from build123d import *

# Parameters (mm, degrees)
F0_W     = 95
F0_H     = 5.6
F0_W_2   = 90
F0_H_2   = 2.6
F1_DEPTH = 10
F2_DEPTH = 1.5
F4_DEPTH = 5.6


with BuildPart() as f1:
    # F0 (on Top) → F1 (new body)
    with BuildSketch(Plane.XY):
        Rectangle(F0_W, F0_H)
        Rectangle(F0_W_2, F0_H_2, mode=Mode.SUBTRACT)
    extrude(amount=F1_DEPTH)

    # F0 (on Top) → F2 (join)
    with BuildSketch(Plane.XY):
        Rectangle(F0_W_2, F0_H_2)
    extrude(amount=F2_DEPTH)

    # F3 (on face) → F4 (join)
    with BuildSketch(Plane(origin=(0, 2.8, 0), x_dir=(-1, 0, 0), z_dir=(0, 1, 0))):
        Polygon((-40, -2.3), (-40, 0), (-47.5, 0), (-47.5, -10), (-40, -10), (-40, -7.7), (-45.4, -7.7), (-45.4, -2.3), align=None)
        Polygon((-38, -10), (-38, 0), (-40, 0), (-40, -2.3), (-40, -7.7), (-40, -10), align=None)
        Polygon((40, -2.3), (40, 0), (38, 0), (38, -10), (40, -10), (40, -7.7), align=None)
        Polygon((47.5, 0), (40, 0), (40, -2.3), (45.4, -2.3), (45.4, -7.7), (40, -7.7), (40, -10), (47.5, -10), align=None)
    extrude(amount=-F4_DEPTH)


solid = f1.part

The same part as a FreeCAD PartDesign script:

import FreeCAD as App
import Part
import Sketcher

V = App.Vector
Q = App.Units.Quantity


def add_polygon(sketch, points):
    """Adds a closed chain of lines whose ends are joined by coincident constraints."""
    first, n = sketch.GeometryCount, len(points)
    for a, b in zip(points, points[1:] + points[:1]):
        sketch.addGeometry(Part.LineSegment(App.Vector(*a, 0), App.Vector(*b, 0)), False)
    for i in range(n):
        sketch.addConstraint(Sketcher.Constraint("Coincident", first + i, 2, first + (i + 1) % n, 1))

doc = App.newDocument("Part")
body = doc.addObject("PartDesign::Body", "Body")

# Sketch on XY plane
sketch1 = body.newObject("Sketcher::SketchObject", "Sketch")
sketch1.AttachmentSupport = (doc.getObject("XY_Plane"), [""])
sketch1.MapMode = "FlatFace"
add_polygon(sketch1, [(-47.5, 2.8), (-47.5, -2.8), (47.5, -2.8), (47.5, 2.8)])  # lines 0-3
add_polygon(sketch1, [(45, -1.3), (-45, -1.3), (-45, 1.3), (45, 1.3)])  # lines 4-7
sketch1.addConstraint([
    Sketcher.Constraint("Vertical", 0),
    Sketcher.Constraint("Horizontal", 1),
    Sketcher.Constraint("Vertical", 2),
    Sketcher.Constraint("Horizontal", 3),
    Sketcher.Constraint("Horizontal", 4),
    Sketcher.Constraint("Vertical", 5),
    Sketcher.Constraint("Horizontal", 6),
    Sketcher.Constraint("Vertical", 7),
    Sketcher.Constraint("Symmetric", 0, 2, 2, 2, -1, 1),
    Sketcher.Constraint("Symmetric", 4, 2, 6, 2, -1, 1),
    Sketcher.Constraint("DistanceX", 1, 1, 1, 2, Q("95 mm")),
    Sketcher.Constraint("DistanceX", 4, 2, 4, 1, Q("90 mm")),
    Sketcher.Constraint("DistanceY", 0, 2, 0, 1, Q("5.6 mm")),
    Sketcher.Constraint("DistanceY", 5, 1, 5, 2, Q("2.6 mm")),
])
pad1 = body.newObject("PartDesign::Pad", "Pad")
pad1.Profile = sketch1
pad1.Length = 10

# Sketch on XY plane
sketch2 = body.newObject("Sketcher::SketchObject", "Sketch001")
sketch2.AttachmentSupport = (doc.getObject("XY_Plane"), [""])
sketch2.MapMode = "FlatFace"
add_polygon(sketch2, [(-45, 1.3), (-45, -1.3), (45, -1.3), (45, 1.3)])  # lines 0-3
sketch2.addConstraint([
    Sketcher.Constraint("Vertical", 0),
    Sketcher.Constraint("Horizontal", 1),
    Sketcher.Constraint("Vertical", 2),
    Sketcher.Constraint("Horizontal", 3),
    Sketcher.Constraint("Symmetric", 0, 2, 2, 2, -1, 1),
    Sketcher.Constraint("DistanceX", 1, 1, 1, 2, Q("90 mm")),
    Sketcher.Constraint("DistanceY", 0, 2, 0, 1, Q("2.6 mm")),
])
pad2 = body.newObject("PartDesign::Pad", "Pad001")
pad2.Profile = sketch2
pad2.Length = 1.5

# Sketch on XZ plane
sketch3 = body.newObject("Sketcher::SketchObject", "Sketch002")
sketch3.AttachmentSupport = (doc.getObject("XZ_Plane"), [""])
sketch3.MapMode = "FlatFace"
sketch3.AttachmentOffset = App.Placement(V(0, 0, -2.8), App.Rotation())
add_polygon(sketch3, [(48, 0), (48, -10), (38, -10), (38, 0)])  # lines 0-3
add_polygon(sketch3, [(40, -8), (45, -8), (45, -2), (40, -2)])  # lines 4-7
add_polygon(sketch3, [(-38, 0), (-38, -10), (-48, -10), (-48, 0)])  # lines 8-11
add_polygon(sketch3, [(-40, -8), (-40, -2), (-45, -2), (-45, -8)])  # lines 12-15
sketch3.addConstraint([
    Sketcher.Constraint("Vertical", 0),
    Sketcher.Constraint("Horizontal", 1),
    Sketcher.Constraint("Vertical", 2),
    Sketcher.Constraint("Horizontal", 3),
    Sketcher.Constraint("Horizontal", 4),
    Sketcher.Constraint("Vertical", 5),
    Sketcher.Constraint("Horizontal", 6),
    Sketcher.Constraint("Vertical", 7),
    Sketcher.Constraint("Vertical", 8),
    Sketcher.Constraint("Horizontal", 9),
    Sketcher.Constraint("Vertical", 10),
    Sketcher.Constraint("Horizontal", 11),
    Sketcher.Constraint("Vertical", 12),
    Sketcher.Constraint("Horizontal", 13),
    Sketcher.Constraint("Vertical", 14),
    Sketcher.Constraint("Horizontal", 15),
    Sketcher.Constraint("Symmetric", 3, 2, 10, 2, -1, 1),
    Sketcher.Constraint("Symmetric", 1, 2, 8, 2, -2),
    Sketcher.Constraint("Symmetric", 6, 2, 12, 2, -2),
    Sketcher.Constraint("Symmetric", 4, 2, 14, 2, -2),
    Sketcher.Constraint("PointOnObject", 2, 2, -1),
    Sketcher.Constraint("Equal", 15, 5),
    Sketcher.Constraint("DistanceY", 0, 2, 0, 1, Q("10 mm")),
    Sketcher.Constraint("DistanceX", 1, 2, 1, 1, Q("9.5 mm")),
    Sketcher.Constraint("DistanceX", 4, 1, 4, 2, Q("5.4 mm")),
    Sketcher.Constraint("DistanceX", -1, 1, 1, 2, Q("38 mm")),
    Sketcher.Constraint("DistanceX", -1, 1, 6, 2, Q("40 mm")),
    Sketcher.Constraint("DistanceY", 4, 2, -1, 1, Q("7.7 mm")),
])
pad3 = body.newObject("PartDesign::Pad", "Pad002")
pad3.Profile = sketch3
pad3.Length = 5.6

doc.recompute()
